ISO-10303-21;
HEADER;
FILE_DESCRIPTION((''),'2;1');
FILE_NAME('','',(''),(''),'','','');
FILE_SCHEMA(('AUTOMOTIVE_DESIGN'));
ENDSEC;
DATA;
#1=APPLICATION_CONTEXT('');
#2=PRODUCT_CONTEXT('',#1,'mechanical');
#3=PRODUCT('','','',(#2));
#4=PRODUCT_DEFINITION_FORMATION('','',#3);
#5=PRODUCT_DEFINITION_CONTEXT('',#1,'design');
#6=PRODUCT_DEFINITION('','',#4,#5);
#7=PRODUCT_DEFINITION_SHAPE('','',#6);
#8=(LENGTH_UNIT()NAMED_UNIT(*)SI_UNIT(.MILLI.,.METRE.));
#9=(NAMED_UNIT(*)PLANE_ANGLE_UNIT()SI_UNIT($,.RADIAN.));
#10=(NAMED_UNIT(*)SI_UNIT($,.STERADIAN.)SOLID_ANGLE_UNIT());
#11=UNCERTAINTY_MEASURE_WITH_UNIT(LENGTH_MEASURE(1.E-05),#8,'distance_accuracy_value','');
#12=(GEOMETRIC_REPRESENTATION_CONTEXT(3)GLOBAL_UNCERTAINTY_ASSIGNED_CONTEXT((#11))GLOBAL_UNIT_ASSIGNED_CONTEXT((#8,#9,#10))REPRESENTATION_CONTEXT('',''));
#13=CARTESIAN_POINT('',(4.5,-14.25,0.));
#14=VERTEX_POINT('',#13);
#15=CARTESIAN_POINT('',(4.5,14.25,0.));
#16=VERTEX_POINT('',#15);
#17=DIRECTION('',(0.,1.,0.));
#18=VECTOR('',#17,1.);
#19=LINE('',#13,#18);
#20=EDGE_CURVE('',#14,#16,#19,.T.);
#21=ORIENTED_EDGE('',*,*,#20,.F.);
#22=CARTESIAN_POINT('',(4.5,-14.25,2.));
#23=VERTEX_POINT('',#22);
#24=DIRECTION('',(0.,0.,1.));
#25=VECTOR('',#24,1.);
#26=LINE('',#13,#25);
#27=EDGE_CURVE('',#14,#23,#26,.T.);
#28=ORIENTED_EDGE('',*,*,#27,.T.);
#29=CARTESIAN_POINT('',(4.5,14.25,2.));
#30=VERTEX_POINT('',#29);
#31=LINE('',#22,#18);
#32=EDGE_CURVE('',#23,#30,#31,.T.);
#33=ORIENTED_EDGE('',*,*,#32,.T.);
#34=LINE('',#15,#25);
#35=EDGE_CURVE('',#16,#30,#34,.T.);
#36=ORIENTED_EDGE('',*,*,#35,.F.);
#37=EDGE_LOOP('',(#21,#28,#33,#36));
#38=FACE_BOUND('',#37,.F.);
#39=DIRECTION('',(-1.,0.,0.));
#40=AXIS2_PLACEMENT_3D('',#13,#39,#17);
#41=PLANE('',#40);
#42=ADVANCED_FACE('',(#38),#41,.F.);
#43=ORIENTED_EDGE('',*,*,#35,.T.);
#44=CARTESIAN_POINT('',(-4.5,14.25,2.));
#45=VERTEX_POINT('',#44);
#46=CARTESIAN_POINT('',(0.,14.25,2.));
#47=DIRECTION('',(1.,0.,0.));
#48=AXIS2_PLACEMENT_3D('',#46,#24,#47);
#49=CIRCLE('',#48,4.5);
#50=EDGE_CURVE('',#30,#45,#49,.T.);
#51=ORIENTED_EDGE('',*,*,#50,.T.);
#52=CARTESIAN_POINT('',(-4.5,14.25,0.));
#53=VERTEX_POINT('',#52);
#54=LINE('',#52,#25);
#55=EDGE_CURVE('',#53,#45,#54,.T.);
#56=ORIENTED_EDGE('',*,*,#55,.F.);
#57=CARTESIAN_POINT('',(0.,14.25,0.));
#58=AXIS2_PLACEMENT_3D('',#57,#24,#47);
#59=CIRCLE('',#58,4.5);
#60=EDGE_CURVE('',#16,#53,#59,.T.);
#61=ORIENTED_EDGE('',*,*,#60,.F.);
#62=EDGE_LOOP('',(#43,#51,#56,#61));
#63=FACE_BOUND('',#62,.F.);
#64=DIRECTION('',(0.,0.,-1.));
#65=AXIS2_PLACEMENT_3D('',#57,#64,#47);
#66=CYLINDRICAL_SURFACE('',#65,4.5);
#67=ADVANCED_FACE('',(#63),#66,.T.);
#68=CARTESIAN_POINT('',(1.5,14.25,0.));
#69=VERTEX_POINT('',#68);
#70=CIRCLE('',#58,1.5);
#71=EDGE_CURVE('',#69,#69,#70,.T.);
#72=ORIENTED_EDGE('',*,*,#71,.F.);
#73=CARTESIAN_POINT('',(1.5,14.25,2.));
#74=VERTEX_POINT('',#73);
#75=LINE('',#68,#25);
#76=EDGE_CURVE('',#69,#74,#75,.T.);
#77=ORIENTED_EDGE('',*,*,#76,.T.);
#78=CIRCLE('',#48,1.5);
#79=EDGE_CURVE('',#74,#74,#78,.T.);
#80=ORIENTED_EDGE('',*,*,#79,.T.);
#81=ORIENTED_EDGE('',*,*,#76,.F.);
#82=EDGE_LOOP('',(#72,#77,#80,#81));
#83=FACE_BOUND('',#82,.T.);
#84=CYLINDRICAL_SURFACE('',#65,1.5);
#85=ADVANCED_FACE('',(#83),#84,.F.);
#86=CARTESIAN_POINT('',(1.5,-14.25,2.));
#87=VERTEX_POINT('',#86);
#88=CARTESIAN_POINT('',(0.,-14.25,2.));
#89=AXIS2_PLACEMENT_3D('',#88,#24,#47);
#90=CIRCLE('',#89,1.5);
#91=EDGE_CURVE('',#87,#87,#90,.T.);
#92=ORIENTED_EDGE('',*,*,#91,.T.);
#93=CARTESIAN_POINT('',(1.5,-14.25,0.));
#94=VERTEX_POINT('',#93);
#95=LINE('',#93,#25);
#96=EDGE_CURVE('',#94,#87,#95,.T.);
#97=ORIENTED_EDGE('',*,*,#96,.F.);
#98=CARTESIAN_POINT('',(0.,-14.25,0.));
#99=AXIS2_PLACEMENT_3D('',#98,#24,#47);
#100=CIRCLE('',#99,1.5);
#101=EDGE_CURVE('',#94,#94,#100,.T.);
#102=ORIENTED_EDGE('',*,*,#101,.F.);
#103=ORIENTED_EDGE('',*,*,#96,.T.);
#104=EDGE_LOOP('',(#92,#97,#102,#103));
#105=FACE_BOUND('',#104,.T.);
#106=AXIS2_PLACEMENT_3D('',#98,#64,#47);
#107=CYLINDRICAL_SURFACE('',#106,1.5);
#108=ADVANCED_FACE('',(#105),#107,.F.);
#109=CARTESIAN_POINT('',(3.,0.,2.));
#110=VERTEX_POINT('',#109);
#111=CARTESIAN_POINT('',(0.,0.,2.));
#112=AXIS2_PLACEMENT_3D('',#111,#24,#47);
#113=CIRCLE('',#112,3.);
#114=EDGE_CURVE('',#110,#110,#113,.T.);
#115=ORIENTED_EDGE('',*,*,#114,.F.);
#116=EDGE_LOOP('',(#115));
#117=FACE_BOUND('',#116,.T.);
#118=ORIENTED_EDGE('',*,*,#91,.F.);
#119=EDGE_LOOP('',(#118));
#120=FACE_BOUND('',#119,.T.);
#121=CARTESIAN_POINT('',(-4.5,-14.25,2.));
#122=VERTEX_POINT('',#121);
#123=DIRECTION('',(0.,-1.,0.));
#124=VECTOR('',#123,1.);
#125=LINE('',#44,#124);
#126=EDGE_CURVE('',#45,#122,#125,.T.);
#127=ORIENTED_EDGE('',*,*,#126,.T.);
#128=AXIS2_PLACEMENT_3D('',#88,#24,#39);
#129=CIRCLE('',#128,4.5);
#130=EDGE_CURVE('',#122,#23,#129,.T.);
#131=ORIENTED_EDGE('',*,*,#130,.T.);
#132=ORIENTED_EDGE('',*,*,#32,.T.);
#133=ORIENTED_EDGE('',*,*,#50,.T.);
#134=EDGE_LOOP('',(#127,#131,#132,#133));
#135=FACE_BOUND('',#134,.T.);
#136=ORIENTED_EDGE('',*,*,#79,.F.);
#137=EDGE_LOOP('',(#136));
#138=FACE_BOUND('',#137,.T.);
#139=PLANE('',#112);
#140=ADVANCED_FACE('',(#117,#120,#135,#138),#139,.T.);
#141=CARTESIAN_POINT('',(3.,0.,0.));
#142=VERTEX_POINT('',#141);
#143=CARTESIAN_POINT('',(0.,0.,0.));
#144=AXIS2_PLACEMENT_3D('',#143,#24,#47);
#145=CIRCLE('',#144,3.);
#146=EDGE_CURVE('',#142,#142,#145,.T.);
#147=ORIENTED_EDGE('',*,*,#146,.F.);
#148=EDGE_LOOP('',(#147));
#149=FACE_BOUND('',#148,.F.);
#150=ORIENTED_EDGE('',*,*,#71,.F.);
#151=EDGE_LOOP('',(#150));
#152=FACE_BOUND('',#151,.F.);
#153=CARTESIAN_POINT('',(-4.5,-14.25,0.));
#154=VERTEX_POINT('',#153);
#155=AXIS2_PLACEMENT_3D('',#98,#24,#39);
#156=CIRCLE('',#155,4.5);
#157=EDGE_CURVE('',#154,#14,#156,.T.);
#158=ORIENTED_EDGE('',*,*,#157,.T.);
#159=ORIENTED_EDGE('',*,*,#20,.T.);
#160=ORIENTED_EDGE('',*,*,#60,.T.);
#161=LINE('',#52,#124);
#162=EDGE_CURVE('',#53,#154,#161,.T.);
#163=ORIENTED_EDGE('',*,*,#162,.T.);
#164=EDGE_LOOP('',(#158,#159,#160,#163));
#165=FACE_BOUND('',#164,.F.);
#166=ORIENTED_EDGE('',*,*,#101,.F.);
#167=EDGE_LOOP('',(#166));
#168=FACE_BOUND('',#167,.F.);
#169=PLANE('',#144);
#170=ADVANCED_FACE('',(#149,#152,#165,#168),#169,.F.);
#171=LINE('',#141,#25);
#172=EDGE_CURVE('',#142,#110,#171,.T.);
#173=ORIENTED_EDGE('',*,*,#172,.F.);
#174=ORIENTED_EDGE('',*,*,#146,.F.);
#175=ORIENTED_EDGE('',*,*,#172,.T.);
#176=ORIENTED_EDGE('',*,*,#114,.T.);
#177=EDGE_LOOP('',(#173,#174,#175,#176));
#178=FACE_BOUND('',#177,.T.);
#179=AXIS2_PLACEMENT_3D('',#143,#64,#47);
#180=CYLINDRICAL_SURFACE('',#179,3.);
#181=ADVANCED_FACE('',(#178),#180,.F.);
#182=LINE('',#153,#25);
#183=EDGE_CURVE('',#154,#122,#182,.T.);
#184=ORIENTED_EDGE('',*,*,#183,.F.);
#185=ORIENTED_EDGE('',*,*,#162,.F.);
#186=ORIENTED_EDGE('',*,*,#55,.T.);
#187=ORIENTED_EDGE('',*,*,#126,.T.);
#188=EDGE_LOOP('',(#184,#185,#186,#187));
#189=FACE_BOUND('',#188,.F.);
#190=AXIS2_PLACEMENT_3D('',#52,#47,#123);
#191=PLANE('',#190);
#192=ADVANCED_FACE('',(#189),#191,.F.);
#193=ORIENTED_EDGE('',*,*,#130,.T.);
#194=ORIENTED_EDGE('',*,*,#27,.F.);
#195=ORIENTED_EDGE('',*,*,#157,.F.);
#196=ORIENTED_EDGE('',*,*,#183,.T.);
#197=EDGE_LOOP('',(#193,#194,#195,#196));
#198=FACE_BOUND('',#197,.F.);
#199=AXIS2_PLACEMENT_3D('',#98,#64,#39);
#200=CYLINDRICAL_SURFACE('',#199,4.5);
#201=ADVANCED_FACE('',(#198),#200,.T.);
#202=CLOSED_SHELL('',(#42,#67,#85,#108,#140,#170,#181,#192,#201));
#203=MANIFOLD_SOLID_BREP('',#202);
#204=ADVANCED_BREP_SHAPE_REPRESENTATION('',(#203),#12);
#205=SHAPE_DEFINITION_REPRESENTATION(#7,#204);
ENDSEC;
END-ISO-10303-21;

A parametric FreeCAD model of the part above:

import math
import FreeCAD as App
import Part
import Sketcher

V = App.Vector

doc = App.newDocument("Part")
params = doc.addObject("Spreadsheet::Sheet", "Params")
for row, (alias, value) in enumerate([
    ("sketch1_diameter", "3 mm"),
    ("sketch1_diameter2", "6 mm"),
    ("sketch1_radius", "4.5 mm"),
    ("sketch1_height", "28.5 mm"),
    ("pad1_length", "2 mm"),
], start=1):
    params.set(f"A{row}", alias)
    params.set(f"B{row}", "=" + value)
    params.setAlias(f"B{row}", alias)

body = doc.addObject("PartDesign::Body", "Body")

# Sketch on XY plane
sketch1 = body.newObject("Sketcher::SketchObject", "Sketch")
sketch1.AttachmentSupport = (doc.getObject("XY_Plane"), [""])
sketch1.MapMode = "FlatFace"
sketch1.addGeometry(Part.ArcOfCircle(Part.Circle(V(0, -14.2, 0), V(0, 0, 1), 4.5), math.radians(180), math.radians(360)), False)
sketch1.addGeometry(Part.LineSegment(V(4.5, -14.2, 0), V(4.5, 14.2, 0)), False)
sketch1.addGeometry(Part.ArcOfCircle(Part.Circle(V(0, 14.2, 0), V(0, 0, 1), 4.5), math.radians(0), math.radians(180)), False)
sketch1.addGeometry(Part.LineSegment(V(-4.5, 14.2, 0), V(-4.5, -14.2, 0)), False)
sketch1.addGeometry(Part.Circle(V(0, -14.2, 0), V(0, 0, 1), 1.5), False)
sketch1.addGeometry(Part.Circle(V(0, 0, 0), V(0, 0, 1), 3), False)
sketch1.addGeometry(Part.Circle(V(0, 14.2, 0), V(0, 0, 1), 1.5), False)
sketch1.addConstraint(Sketcher.Constraint("Tangent", 0, 2, 1, 1))
sketch1.addConstraint(Sketcher.Constraint("Tangent", 1, 2, 2, 1))
sketch1.addConstraint(Sketcher.Constraint("Tangent", 2, 2, 3, 1))
sketch1.addConstraint(Sketcher.Constraint("Tangent", 3, 2, 0, 1))
sketch1.addConstraint(Sketcher.Constraint("Vertical", 1))
sketch1.addConstraint(Sketcher.Constraint("Vertical", 3))
sketch1.addConstraint(Sketcher.Constraint("Coincident", 5, 3, -1, 1))
sketch1.addConstraint(Sketcher.Constraint("Coincident", 4, 3, 0, 3))
sketch1.addConstraint(Sketcher.Constraint("Coincident", 6, 3, 2, 3))
sketch1.addConstraint(Sketcher.Constraint("Equal", 4, 6))
sketch1.addConstraint(Sketcher.Constraint("Symmetric", 0, 3, 2, 3, -1, 1))
sketch1.addConstraint(Sketcher.Constraint("Diameter", 4, 3.0))
sketch1.addConstraint(Sketcher.Constraint("Diameter", 5, 6.0))
sketch1.addConstraint(Sketcher.Constraint("Radius", 0, 4.5))
sketch1.addConstraint(Sketcher.Constraint("DistanceY", 1, 1, 1, 2, 28.5))
sketch1.setExpression("Constraints[11]", "Params.sketch1_diameter")
sketch1.setExpression("Constraints[12]", "Params.sketch1_diameter2")
sketch1.setExpression("Constraints[13]", "Params.sketch1_radius")
sketch1.setExpression("Constraints[14]", "Params.sketch1_height")
pad1 = body.newObject("PartDesign::Pad", "Pad")
pad1.Profile = sketch1
pad1.setExpression("Length", "Params.pad1_length")

doc.recompute()
